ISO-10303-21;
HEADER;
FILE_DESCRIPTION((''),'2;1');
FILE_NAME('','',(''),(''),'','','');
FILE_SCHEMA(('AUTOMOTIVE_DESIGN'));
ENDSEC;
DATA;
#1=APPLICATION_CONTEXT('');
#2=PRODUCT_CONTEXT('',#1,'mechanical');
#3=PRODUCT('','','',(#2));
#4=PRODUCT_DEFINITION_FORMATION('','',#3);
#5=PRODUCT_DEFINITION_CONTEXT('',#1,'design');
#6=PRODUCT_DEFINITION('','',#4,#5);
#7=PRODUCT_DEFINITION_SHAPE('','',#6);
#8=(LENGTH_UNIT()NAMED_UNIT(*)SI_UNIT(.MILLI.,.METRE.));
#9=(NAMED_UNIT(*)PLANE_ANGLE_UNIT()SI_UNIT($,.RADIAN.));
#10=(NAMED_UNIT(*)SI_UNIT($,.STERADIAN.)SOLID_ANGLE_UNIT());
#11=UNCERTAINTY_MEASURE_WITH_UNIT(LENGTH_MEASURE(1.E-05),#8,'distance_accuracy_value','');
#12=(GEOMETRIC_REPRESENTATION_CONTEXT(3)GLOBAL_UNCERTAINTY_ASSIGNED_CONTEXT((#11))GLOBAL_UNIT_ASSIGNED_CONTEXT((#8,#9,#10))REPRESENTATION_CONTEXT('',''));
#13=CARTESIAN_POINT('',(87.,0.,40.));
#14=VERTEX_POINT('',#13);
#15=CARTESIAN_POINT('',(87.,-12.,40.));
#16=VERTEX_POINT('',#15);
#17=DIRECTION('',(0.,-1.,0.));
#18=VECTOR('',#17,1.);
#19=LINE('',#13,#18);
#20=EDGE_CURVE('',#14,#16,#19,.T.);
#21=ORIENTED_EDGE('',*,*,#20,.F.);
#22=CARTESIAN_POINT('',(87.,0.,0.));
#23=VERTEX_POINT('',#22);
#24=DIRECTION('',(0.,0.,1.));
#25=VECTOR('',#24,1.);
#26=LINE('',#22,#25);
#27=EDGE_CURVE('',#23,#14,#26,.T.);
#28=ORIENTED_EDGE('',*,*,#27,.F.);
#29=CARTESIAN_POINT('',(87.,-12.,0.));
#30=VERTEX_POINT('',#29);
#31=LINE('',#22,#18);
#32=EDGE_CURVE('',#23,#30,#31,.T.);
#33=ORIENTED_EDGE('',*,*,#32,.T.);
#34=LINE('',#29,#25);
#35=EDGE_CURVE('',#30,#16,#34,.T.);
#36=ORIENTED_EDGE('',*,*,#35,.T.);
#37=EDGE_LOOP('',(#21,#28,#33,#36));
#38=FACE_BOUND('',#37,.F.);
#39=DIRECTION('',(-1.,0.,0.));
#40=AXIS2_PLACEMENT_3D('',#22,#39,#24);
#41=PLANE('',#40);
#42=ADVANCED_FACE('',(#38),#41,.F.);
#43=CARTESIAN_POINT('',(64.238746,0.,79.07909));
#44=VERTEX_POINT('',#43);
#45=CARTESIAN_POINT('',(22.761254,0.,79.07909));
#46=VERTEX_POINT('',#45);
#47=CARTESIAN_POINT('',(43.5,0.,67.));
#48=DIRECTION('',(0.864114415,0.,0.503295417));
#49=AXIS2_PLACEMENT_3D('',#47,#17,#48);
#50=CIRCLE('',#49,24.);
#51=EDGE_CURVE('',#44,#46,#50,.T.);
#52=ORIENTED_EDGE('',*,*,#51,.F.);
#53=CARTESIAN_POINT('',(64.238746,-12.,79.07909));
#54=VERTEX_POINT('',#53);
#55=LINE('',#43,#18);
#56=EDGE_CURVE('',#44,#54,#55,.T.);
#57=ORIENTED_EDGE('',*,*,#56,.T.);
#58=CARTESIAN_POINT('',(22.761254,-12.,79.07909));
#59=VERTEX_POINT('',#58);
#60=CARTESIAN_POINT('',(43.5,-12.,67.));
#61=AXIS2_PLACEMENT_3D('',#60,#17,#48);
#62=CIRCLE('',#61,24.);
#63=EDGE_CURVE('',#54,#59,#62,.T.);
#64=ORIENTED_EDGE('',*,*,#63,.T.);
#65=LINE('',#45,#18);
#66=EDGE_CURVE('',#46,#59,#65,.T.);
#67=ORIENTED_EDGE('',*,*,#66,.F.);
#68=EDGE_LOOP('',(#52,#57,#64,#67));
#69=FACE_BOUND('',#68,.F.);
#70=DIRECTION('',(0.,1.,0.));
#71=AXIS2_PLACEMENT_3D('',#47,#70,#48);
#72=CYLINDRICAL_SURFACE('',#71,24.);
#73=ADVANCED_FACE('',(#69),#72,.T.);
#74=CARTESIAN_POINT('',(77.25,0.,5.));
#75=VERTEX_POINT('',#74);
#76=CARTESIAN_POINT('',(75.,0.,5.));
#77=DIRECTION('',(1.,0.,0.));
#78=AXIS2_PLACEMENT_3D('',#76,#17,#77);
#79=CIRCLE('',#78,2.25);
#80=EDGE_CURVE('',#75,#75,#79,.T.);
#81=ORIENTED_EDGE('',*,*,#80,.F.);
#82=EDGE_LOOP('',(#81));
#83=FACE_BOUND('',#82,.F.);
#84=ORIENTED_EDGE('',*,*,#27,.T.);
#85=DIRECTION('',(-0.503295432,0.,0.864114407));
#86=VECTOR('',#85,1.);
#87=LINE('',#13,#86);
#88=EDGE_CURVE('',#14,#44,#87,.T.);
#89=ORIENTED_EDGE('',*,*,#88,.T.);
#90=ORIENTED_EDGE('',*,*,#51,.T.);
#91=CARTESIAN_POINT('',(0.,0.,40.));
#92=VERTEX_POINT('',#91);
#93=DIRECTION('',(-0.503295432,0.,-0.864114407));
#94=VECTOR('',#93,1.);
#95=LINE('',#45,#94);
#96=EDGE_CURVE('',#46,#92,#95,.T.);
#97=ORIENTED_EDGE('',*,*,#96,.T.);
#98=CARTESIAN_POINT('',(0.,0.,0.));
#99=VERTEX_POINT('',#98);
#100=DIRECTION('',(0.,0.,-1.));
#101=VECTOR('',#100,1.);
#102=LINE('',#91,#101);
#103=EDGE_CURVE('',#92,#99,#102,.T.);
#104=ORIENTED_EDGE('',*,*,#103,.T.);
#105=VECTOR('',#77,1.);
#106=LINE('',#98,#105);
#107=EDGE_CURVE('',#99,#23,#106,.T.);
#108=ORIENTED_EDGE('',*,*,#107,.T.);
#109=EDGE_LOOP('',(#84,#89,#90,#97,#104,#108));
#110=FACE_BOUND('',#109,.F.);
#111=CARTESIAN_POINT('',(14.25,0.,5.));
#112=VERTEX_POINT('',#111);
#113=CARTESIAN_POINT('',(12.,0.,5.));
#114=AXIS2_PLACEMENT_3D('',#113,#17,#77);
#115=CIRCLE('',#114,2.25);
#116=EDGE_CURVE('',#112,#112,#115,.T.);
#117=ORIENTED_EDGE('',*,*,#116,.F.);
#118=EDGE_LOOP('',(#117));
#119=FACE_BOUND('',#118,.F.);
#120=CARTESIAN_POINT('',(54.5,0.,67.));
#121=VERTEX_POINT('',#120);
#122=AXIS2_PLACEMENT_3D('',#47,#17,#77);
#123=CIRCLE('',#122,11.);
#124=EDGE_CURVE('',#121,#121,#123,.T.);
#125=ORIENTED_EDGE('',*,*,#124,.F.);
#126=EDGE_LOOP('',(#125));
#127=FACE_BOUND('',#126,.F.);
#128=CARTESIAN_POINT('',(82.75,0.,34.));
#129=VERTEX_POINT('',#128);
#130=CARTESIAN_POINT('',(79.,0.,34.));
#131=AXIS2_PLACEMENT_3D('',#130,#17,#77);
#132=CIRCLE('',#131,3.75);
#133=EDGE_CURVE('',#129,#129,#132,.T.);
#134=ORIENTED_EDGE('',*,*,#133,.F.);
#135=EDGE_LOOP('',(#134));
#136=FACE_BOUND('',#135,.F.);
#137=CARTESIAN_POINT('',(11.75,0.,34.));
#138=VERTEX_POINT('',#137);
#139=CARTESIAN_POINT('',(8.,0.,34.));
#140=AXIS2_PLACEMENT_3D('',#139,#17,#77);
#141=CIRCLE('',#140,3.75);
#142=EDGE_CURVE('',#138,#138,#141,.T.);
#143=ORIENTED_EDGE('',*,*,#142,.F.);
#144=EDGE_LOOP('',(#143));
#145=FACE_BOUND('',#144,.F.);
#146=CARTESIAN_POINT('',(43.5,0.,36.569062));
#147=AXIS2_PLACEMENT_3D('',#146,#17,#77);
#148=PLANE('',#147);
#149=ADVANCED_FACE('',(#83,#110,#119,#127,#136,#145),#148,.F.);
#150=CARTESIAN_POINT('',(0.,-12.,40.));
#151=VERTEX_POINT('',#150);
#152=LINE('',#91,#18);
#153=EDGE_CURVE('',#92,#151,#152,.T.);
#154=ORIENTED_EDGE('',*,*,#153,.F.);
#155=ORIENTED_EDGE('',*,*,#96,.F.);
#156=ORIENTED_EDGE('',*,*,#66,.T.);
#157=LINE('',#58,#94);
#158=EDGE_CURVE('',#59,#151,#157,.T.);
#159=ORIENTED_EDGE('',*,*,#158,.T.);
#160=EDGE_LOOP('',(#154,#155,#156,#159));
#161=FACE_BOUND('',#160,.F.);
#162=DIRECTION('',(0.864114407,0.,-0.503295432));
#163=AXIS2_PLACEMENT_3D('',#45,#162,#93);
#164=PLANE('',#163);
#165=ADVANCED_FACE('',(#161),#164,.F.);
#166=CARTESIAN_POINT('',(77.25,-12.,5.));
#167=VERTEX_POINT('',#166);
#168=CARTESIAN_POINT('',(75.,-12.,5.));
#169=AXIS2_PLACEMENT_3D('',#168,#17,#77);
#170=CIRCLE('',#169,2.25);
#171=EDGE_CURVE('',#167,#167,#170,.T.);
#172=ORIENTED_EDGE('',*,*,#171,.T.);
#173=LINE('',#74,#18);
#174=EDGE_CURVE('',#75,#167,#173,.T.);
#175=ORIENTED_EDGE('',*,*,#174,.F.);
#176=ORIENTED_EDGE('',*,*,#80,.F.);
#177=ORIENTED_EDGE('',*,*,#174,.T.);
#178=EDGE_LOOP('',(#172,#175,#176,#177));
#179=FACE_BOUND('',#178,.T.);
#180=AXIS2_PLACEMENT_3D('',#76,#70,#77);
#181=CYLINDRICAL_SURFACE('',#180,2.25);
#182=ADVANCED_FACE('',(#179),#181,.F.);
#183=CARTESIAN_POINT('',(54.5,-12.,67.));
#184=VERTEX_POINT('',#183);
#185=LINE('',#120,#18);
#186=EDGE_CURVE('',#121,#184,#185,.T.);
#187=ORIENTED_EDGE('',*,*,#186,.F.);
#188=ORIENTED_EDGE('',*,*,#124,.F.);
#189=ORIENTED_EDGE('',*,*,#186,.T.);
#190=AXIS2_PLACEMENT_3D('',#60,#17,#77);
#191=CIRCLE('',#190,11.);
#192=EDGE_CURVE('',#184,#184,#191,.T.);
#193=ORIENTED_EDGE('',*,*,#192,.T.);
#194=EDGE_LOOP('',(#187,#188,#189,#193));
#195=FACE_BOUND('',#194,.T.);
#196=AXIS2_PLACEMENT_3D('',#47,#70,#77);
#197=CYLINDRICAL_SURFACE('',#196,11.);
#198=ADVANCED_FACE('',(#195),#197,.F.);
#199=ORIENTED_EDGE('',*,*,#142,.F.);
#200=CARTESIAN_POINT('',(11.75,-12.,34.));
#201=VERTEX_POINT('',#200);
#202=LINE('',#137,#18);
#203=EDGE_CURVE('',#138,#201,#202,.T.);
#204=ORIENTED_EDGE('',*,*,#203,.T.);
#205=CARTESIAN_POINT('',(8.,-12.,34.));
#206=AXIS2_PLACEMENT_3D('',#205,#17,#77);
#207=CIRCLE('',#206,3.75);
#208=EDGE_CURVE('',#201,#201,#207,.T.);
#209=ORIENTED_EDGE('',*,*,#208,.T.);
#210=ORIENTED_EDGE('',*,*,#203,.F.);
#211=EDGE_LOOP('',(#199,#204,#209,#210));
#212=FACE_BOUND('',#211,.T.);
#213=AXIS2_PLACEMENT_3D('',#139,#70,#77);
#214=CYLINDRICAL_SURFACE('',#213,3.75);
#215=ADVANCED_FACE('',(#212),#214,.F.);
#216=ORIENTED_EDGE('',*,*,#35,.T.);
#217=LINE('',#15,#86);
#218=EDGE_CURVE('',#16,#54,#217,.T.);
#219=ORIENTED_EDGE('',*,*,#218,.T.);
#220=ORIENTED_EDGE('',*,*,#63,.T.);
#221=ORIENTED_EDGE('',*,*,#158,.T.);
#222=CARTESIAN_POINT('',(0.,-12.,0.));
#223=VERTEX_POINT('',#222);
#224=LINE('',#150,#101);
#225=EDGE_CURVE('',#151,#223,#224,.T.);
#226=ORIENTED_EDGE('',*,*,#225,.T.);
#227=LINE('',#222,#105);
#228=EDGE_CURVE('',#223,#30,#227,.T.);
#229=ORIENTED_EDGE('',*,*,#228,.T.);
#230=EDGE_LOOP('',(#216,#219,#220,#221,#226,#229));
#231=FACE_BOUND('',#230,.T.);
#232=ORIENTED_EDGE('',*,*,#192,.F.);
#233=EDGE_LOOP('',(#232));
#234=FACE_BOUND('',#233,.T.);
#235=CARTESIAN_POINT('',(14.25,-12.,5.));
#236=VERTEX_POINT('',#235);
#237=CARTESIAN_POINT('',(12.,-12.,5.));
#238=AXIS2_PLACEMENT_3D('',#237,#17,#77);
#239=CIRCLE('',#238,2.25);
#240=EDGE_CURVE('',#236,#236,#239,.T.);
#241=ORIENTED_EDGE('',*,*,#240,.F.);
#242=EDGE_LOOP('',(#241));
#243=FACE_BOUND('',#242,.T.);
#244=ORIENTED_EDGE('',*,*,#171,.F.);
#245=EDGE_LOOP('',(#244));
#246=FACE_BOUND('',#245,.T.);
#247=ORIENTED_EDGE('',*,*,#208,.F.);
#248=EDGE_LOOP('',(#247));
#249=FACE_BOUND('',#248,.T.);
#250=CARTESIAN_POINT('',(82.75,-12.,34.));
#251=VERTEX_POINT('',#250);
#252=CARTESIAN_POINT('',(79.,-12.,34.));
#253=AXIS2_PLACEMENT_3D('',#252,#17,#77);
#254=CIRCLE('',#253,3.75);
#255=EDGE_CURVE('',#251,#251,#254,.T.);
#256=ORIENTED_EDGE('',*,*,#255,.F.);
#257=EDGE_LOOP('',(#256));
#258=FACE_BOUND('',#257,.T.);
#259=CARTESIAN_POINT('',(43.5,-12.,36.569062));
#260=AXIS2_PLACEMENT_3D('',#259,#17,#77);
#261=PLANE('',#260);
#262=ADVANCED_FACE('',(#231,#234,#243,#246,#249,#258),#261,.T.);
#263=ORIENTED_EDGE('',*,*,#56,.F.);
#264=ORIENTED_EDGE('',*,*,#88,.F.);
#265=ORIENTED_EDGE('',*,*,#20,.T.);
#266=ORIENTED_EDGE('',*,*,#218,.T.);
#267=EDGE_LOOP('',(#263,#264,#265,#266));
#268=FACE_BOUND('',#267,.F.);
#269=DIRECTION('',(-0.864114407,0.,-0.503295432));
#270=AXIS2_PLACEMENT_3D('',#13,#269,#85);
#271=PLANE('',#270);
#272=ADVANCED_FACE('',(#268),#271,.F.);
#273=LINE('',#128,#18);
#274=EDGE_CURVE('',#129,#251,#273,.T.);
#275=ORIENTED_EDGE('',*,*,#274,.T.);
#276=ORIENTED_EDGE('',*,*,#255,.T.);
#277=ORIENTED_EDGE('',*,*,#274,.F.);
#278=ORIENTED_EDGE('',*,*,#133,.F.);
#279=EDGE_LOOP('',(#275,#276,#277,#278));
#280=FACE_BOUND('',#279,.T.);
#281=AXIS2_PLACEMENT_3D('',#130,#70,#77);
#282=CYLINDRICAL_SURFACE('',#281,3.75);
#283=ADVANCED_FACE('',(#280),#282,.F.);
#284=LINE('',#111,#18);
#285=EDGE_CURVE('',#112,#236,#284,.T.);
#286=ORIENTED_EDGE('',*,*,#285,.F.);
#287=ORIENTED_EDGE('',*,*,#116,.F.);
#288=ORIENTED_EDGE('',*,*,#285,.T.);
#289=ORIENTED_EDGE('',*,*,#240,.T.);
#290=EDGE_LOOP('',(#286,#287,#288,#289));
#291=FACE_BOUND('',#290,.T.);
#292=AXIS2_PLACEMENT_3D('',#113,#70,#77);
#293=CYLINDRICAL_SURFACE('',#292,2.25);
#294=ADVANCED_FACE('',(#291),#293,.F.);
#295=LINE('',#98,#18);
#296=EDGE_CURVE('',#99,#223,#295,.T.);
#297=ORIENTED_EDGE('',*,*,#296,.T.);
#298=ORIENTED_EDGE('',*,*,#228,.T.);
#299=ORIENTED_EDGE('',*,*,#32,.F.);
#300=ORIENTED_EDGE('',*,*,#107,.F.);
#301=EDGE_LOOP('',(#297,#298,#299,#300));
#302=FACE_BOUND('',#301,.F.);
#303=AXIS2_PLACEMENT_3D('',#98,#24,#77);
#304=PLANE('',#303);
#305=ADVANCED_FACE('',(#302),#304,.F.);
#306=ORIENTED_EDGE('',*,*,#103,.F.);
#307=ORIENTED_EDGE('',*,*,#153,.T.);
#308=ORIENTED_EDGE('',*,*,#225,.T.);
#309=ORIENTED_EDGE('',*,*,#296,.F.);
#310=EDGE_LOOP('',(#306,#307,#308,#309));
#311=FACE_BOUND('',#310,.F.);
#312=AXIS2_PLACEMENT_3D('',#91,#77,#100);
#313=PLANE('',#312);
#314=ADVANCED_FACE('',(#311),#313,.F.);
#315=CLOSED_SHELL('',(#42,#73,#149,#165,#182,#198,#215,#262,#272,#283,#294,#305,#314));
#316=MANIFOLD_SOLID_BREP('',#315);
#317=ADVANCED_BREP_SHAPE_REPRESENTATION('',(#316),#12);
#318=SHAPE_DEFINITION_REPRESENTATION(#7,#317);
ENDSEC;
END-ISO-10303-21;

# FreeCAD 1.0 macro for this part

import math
import FreeCAD as App
import Part
import Sketcher
from FreeCAD import Vector

doc = App.newDocument("Part")
params = doc.addObject("Spreadsheet::Sheet", "Params")
for row, (alias, value) in enumerate([
    ("sketch1_diameter", "22 mm"),
    ("sketch1_radius", "24 mm"),
    ("sketch1_diameter2", "4.5 mm"),
    ("sketch1_diameter3", "7.5 mm"),
    ("sketch1_width", "87 mm"),
    ("pad1_length", "12 mm"),
], start=1):
    params.set(f"A{row}", alias)
    params.set(f"B{row}", "=" + value)
    params.setAlias(f"B{row}", alias)

body = doc.addObject("PartDesign::Body", "Body")

# Sketch on XZ plane
sketch1 = body.newObject("Sketcher::SketchObject", "Sketch")
sketch1.AttachmentSupport = (doc.getObject("XZ_Plane"), [""])
sketch1.MapMode = "FlatFace"
sketch1.addGeometry(Part.LineSegment(Vector(0, 40, 0), Vector(0, 0, 0)), False)
sketch1.addGeometry(Part.LineSegment(Vector(0, 0, 0), Vector(87, 0, 0)), False)
sketch1.addGeometry(Part.LineSegment(Vector(87, 0, 0), Vector(87, 40, 0)), False)
sketch1.addGeometry(Part.LineSegment(Vector(87, 40, 0), Vector(64.2, 79.1, 0)), False)
sketch1.addGeometry(Part.ArcOfCircle(Part.Circle(Vector(43.5, 67, 0), Vector(0, 0, 1), 24), math.radians(30), math.radians(150)), False)
sketch1.addGeometry(Part.LineSegment(Vector(22.8, 79.1, 0), Vector(0, 40, 0)), False)
sketch1.addGeometry(Part.Circle(Vector(12, 5, 0), Vector(0, 0, 1), 2.2), False)
sketch1.addGeometry(Part.Circle(Vector(8, 34, 0), Vector(0, 0, 1), 3.8), False)
sketch1.addGeometry(Part.Circle(Vector(75, 5, 0), Vector(0, 0, 1), 2.2), False)
sketch1.addGeometry(Part.Circle(Vector(79, 34, 0), Vector(0, 0, 1), 3.8), False)
sketch1.addGeometry(Part.Circle(Vector(43.5, 67, 0), Vector(0, 0, 1), 11), False)
sketch1.addConstraint(Sketcher.Constraint("Coincident", 0, 2, 1, 1))
sketch1.addConstraint(Sketcher.Constraint("Coincident", 1, 2, 2, 1))
sketch1.addConstraint(Sketcher.Constraint("Coincident", 2, 2, 3, 1))
sketch1.addConstraint(Sketcher.Constraint("Tangent", 3, 2, 4, 1))
sketch1.addConstraint(Sketcher.Constraint("Tangent", 4, 2, 5, 1))
sketch1.addConstraint(Sketcher.Constraint("Coincident", 5, 2, 0, 1))
sketch1.addConstraint(Sketcher.Constraint("Vertical", 0))
sketch1.addConstraint(Sketcher.Constraint("Horizontal", 1))
sketch1.addConstraint(Sketcher.Constraint("Vertical", 2))
sketch1.addConstraint(Sketcher.Constraint("Coincident", 0, 2, -1, 1))
sketch1.addConstraint(Sketcher.Constraint("Coincident", 10, 3, 4, 3))
sketch1.addConstraint(Sketcher.Constraint("Equal", 6, 8))
sketch1.addConstraint(Sketcher.Constraint("Equal", 7, 9))
sketch1.addConstraint(Sketcher.Constraint("Horizontal", 6, 3, 8, 3))
sketch1.addConstraint(Sketcher.Constraint("Horizontal", 7, 3, 9, 3))
sketch1.addConstraint(Sketcher.Constraint("Horizontal", 3, 2, 4, 2))
sketch1.addConstraint(Sketcher.Constraint("Horizontal", 2, 2, 5, 2))
sketch1.addConstraint(Sketcher.Constraint("Diameter", 10, 22.0))
sketch1.addConstraint(Sketcher.Constraint("Radius", 4, 24.0))
sketch1.addConstraint(Sketcher.Constraint("Diameter", 6, 4.5))
sketch1.addConstraint(Sketcher.Constraint("Diameter", 7, 7.5))
sketch1.addConstraint(Sketcher.Constraint("DistanceX", 1, 1, 1, 2, 87.0))
sketch1.addConstraint(Sketcher.Constraint("DistanceY", 0, 2, 0, 1, 40.0))
sketch1.addConstraint(Sketcher.Constraint("DistanceY", -1, 1, 4, 3, 67.0))
sketch1.addConstraint(Sketcher.Constraint("DistanceX", -1, 1, 6, 3, 12.0))
sketch1.addConstraint(Sketcher.Constraint("DistanceY", -1, 1, 6, 3, 5.0))
sketch1.addConstraint(Sketcher.Constraint("DistanceX", -1, 1, 7, 3, 8.0))
sketch1.addConstraint(Sketcher.Constraint("DistanceY", -1, 1, 7, 3, 34.0))
sketch1.addConstraint(Sketcher.Constraint("DistanceX", -1, 1, 8, 3, 75.0))
sketch1.addConstraint(Sketcher.Constraint("DistanceX", -1, 1, 9, 3, 79.0))
sketch1.setExpression("Constraints[17]", "Params.sketch1_diameter")
sketch1.setExpression("Constraints[18]", "Params.sketch1_radius")
sketch1.setExpression("Constraints[19]", "Params.sketch1_diameter2")
sketch1.setExpression("Constraints[20]", "Params.sketch1_diameter3")
sketch1.setExpression("Constraints[21]", "Params.sketch1_width")
pad1 = body.newObject("PartDesign::Pad", "Pad")
pad1.Profile = sketch1
pad1.setExpression("Length", "Params.pad1_length")

doc.recompute()
